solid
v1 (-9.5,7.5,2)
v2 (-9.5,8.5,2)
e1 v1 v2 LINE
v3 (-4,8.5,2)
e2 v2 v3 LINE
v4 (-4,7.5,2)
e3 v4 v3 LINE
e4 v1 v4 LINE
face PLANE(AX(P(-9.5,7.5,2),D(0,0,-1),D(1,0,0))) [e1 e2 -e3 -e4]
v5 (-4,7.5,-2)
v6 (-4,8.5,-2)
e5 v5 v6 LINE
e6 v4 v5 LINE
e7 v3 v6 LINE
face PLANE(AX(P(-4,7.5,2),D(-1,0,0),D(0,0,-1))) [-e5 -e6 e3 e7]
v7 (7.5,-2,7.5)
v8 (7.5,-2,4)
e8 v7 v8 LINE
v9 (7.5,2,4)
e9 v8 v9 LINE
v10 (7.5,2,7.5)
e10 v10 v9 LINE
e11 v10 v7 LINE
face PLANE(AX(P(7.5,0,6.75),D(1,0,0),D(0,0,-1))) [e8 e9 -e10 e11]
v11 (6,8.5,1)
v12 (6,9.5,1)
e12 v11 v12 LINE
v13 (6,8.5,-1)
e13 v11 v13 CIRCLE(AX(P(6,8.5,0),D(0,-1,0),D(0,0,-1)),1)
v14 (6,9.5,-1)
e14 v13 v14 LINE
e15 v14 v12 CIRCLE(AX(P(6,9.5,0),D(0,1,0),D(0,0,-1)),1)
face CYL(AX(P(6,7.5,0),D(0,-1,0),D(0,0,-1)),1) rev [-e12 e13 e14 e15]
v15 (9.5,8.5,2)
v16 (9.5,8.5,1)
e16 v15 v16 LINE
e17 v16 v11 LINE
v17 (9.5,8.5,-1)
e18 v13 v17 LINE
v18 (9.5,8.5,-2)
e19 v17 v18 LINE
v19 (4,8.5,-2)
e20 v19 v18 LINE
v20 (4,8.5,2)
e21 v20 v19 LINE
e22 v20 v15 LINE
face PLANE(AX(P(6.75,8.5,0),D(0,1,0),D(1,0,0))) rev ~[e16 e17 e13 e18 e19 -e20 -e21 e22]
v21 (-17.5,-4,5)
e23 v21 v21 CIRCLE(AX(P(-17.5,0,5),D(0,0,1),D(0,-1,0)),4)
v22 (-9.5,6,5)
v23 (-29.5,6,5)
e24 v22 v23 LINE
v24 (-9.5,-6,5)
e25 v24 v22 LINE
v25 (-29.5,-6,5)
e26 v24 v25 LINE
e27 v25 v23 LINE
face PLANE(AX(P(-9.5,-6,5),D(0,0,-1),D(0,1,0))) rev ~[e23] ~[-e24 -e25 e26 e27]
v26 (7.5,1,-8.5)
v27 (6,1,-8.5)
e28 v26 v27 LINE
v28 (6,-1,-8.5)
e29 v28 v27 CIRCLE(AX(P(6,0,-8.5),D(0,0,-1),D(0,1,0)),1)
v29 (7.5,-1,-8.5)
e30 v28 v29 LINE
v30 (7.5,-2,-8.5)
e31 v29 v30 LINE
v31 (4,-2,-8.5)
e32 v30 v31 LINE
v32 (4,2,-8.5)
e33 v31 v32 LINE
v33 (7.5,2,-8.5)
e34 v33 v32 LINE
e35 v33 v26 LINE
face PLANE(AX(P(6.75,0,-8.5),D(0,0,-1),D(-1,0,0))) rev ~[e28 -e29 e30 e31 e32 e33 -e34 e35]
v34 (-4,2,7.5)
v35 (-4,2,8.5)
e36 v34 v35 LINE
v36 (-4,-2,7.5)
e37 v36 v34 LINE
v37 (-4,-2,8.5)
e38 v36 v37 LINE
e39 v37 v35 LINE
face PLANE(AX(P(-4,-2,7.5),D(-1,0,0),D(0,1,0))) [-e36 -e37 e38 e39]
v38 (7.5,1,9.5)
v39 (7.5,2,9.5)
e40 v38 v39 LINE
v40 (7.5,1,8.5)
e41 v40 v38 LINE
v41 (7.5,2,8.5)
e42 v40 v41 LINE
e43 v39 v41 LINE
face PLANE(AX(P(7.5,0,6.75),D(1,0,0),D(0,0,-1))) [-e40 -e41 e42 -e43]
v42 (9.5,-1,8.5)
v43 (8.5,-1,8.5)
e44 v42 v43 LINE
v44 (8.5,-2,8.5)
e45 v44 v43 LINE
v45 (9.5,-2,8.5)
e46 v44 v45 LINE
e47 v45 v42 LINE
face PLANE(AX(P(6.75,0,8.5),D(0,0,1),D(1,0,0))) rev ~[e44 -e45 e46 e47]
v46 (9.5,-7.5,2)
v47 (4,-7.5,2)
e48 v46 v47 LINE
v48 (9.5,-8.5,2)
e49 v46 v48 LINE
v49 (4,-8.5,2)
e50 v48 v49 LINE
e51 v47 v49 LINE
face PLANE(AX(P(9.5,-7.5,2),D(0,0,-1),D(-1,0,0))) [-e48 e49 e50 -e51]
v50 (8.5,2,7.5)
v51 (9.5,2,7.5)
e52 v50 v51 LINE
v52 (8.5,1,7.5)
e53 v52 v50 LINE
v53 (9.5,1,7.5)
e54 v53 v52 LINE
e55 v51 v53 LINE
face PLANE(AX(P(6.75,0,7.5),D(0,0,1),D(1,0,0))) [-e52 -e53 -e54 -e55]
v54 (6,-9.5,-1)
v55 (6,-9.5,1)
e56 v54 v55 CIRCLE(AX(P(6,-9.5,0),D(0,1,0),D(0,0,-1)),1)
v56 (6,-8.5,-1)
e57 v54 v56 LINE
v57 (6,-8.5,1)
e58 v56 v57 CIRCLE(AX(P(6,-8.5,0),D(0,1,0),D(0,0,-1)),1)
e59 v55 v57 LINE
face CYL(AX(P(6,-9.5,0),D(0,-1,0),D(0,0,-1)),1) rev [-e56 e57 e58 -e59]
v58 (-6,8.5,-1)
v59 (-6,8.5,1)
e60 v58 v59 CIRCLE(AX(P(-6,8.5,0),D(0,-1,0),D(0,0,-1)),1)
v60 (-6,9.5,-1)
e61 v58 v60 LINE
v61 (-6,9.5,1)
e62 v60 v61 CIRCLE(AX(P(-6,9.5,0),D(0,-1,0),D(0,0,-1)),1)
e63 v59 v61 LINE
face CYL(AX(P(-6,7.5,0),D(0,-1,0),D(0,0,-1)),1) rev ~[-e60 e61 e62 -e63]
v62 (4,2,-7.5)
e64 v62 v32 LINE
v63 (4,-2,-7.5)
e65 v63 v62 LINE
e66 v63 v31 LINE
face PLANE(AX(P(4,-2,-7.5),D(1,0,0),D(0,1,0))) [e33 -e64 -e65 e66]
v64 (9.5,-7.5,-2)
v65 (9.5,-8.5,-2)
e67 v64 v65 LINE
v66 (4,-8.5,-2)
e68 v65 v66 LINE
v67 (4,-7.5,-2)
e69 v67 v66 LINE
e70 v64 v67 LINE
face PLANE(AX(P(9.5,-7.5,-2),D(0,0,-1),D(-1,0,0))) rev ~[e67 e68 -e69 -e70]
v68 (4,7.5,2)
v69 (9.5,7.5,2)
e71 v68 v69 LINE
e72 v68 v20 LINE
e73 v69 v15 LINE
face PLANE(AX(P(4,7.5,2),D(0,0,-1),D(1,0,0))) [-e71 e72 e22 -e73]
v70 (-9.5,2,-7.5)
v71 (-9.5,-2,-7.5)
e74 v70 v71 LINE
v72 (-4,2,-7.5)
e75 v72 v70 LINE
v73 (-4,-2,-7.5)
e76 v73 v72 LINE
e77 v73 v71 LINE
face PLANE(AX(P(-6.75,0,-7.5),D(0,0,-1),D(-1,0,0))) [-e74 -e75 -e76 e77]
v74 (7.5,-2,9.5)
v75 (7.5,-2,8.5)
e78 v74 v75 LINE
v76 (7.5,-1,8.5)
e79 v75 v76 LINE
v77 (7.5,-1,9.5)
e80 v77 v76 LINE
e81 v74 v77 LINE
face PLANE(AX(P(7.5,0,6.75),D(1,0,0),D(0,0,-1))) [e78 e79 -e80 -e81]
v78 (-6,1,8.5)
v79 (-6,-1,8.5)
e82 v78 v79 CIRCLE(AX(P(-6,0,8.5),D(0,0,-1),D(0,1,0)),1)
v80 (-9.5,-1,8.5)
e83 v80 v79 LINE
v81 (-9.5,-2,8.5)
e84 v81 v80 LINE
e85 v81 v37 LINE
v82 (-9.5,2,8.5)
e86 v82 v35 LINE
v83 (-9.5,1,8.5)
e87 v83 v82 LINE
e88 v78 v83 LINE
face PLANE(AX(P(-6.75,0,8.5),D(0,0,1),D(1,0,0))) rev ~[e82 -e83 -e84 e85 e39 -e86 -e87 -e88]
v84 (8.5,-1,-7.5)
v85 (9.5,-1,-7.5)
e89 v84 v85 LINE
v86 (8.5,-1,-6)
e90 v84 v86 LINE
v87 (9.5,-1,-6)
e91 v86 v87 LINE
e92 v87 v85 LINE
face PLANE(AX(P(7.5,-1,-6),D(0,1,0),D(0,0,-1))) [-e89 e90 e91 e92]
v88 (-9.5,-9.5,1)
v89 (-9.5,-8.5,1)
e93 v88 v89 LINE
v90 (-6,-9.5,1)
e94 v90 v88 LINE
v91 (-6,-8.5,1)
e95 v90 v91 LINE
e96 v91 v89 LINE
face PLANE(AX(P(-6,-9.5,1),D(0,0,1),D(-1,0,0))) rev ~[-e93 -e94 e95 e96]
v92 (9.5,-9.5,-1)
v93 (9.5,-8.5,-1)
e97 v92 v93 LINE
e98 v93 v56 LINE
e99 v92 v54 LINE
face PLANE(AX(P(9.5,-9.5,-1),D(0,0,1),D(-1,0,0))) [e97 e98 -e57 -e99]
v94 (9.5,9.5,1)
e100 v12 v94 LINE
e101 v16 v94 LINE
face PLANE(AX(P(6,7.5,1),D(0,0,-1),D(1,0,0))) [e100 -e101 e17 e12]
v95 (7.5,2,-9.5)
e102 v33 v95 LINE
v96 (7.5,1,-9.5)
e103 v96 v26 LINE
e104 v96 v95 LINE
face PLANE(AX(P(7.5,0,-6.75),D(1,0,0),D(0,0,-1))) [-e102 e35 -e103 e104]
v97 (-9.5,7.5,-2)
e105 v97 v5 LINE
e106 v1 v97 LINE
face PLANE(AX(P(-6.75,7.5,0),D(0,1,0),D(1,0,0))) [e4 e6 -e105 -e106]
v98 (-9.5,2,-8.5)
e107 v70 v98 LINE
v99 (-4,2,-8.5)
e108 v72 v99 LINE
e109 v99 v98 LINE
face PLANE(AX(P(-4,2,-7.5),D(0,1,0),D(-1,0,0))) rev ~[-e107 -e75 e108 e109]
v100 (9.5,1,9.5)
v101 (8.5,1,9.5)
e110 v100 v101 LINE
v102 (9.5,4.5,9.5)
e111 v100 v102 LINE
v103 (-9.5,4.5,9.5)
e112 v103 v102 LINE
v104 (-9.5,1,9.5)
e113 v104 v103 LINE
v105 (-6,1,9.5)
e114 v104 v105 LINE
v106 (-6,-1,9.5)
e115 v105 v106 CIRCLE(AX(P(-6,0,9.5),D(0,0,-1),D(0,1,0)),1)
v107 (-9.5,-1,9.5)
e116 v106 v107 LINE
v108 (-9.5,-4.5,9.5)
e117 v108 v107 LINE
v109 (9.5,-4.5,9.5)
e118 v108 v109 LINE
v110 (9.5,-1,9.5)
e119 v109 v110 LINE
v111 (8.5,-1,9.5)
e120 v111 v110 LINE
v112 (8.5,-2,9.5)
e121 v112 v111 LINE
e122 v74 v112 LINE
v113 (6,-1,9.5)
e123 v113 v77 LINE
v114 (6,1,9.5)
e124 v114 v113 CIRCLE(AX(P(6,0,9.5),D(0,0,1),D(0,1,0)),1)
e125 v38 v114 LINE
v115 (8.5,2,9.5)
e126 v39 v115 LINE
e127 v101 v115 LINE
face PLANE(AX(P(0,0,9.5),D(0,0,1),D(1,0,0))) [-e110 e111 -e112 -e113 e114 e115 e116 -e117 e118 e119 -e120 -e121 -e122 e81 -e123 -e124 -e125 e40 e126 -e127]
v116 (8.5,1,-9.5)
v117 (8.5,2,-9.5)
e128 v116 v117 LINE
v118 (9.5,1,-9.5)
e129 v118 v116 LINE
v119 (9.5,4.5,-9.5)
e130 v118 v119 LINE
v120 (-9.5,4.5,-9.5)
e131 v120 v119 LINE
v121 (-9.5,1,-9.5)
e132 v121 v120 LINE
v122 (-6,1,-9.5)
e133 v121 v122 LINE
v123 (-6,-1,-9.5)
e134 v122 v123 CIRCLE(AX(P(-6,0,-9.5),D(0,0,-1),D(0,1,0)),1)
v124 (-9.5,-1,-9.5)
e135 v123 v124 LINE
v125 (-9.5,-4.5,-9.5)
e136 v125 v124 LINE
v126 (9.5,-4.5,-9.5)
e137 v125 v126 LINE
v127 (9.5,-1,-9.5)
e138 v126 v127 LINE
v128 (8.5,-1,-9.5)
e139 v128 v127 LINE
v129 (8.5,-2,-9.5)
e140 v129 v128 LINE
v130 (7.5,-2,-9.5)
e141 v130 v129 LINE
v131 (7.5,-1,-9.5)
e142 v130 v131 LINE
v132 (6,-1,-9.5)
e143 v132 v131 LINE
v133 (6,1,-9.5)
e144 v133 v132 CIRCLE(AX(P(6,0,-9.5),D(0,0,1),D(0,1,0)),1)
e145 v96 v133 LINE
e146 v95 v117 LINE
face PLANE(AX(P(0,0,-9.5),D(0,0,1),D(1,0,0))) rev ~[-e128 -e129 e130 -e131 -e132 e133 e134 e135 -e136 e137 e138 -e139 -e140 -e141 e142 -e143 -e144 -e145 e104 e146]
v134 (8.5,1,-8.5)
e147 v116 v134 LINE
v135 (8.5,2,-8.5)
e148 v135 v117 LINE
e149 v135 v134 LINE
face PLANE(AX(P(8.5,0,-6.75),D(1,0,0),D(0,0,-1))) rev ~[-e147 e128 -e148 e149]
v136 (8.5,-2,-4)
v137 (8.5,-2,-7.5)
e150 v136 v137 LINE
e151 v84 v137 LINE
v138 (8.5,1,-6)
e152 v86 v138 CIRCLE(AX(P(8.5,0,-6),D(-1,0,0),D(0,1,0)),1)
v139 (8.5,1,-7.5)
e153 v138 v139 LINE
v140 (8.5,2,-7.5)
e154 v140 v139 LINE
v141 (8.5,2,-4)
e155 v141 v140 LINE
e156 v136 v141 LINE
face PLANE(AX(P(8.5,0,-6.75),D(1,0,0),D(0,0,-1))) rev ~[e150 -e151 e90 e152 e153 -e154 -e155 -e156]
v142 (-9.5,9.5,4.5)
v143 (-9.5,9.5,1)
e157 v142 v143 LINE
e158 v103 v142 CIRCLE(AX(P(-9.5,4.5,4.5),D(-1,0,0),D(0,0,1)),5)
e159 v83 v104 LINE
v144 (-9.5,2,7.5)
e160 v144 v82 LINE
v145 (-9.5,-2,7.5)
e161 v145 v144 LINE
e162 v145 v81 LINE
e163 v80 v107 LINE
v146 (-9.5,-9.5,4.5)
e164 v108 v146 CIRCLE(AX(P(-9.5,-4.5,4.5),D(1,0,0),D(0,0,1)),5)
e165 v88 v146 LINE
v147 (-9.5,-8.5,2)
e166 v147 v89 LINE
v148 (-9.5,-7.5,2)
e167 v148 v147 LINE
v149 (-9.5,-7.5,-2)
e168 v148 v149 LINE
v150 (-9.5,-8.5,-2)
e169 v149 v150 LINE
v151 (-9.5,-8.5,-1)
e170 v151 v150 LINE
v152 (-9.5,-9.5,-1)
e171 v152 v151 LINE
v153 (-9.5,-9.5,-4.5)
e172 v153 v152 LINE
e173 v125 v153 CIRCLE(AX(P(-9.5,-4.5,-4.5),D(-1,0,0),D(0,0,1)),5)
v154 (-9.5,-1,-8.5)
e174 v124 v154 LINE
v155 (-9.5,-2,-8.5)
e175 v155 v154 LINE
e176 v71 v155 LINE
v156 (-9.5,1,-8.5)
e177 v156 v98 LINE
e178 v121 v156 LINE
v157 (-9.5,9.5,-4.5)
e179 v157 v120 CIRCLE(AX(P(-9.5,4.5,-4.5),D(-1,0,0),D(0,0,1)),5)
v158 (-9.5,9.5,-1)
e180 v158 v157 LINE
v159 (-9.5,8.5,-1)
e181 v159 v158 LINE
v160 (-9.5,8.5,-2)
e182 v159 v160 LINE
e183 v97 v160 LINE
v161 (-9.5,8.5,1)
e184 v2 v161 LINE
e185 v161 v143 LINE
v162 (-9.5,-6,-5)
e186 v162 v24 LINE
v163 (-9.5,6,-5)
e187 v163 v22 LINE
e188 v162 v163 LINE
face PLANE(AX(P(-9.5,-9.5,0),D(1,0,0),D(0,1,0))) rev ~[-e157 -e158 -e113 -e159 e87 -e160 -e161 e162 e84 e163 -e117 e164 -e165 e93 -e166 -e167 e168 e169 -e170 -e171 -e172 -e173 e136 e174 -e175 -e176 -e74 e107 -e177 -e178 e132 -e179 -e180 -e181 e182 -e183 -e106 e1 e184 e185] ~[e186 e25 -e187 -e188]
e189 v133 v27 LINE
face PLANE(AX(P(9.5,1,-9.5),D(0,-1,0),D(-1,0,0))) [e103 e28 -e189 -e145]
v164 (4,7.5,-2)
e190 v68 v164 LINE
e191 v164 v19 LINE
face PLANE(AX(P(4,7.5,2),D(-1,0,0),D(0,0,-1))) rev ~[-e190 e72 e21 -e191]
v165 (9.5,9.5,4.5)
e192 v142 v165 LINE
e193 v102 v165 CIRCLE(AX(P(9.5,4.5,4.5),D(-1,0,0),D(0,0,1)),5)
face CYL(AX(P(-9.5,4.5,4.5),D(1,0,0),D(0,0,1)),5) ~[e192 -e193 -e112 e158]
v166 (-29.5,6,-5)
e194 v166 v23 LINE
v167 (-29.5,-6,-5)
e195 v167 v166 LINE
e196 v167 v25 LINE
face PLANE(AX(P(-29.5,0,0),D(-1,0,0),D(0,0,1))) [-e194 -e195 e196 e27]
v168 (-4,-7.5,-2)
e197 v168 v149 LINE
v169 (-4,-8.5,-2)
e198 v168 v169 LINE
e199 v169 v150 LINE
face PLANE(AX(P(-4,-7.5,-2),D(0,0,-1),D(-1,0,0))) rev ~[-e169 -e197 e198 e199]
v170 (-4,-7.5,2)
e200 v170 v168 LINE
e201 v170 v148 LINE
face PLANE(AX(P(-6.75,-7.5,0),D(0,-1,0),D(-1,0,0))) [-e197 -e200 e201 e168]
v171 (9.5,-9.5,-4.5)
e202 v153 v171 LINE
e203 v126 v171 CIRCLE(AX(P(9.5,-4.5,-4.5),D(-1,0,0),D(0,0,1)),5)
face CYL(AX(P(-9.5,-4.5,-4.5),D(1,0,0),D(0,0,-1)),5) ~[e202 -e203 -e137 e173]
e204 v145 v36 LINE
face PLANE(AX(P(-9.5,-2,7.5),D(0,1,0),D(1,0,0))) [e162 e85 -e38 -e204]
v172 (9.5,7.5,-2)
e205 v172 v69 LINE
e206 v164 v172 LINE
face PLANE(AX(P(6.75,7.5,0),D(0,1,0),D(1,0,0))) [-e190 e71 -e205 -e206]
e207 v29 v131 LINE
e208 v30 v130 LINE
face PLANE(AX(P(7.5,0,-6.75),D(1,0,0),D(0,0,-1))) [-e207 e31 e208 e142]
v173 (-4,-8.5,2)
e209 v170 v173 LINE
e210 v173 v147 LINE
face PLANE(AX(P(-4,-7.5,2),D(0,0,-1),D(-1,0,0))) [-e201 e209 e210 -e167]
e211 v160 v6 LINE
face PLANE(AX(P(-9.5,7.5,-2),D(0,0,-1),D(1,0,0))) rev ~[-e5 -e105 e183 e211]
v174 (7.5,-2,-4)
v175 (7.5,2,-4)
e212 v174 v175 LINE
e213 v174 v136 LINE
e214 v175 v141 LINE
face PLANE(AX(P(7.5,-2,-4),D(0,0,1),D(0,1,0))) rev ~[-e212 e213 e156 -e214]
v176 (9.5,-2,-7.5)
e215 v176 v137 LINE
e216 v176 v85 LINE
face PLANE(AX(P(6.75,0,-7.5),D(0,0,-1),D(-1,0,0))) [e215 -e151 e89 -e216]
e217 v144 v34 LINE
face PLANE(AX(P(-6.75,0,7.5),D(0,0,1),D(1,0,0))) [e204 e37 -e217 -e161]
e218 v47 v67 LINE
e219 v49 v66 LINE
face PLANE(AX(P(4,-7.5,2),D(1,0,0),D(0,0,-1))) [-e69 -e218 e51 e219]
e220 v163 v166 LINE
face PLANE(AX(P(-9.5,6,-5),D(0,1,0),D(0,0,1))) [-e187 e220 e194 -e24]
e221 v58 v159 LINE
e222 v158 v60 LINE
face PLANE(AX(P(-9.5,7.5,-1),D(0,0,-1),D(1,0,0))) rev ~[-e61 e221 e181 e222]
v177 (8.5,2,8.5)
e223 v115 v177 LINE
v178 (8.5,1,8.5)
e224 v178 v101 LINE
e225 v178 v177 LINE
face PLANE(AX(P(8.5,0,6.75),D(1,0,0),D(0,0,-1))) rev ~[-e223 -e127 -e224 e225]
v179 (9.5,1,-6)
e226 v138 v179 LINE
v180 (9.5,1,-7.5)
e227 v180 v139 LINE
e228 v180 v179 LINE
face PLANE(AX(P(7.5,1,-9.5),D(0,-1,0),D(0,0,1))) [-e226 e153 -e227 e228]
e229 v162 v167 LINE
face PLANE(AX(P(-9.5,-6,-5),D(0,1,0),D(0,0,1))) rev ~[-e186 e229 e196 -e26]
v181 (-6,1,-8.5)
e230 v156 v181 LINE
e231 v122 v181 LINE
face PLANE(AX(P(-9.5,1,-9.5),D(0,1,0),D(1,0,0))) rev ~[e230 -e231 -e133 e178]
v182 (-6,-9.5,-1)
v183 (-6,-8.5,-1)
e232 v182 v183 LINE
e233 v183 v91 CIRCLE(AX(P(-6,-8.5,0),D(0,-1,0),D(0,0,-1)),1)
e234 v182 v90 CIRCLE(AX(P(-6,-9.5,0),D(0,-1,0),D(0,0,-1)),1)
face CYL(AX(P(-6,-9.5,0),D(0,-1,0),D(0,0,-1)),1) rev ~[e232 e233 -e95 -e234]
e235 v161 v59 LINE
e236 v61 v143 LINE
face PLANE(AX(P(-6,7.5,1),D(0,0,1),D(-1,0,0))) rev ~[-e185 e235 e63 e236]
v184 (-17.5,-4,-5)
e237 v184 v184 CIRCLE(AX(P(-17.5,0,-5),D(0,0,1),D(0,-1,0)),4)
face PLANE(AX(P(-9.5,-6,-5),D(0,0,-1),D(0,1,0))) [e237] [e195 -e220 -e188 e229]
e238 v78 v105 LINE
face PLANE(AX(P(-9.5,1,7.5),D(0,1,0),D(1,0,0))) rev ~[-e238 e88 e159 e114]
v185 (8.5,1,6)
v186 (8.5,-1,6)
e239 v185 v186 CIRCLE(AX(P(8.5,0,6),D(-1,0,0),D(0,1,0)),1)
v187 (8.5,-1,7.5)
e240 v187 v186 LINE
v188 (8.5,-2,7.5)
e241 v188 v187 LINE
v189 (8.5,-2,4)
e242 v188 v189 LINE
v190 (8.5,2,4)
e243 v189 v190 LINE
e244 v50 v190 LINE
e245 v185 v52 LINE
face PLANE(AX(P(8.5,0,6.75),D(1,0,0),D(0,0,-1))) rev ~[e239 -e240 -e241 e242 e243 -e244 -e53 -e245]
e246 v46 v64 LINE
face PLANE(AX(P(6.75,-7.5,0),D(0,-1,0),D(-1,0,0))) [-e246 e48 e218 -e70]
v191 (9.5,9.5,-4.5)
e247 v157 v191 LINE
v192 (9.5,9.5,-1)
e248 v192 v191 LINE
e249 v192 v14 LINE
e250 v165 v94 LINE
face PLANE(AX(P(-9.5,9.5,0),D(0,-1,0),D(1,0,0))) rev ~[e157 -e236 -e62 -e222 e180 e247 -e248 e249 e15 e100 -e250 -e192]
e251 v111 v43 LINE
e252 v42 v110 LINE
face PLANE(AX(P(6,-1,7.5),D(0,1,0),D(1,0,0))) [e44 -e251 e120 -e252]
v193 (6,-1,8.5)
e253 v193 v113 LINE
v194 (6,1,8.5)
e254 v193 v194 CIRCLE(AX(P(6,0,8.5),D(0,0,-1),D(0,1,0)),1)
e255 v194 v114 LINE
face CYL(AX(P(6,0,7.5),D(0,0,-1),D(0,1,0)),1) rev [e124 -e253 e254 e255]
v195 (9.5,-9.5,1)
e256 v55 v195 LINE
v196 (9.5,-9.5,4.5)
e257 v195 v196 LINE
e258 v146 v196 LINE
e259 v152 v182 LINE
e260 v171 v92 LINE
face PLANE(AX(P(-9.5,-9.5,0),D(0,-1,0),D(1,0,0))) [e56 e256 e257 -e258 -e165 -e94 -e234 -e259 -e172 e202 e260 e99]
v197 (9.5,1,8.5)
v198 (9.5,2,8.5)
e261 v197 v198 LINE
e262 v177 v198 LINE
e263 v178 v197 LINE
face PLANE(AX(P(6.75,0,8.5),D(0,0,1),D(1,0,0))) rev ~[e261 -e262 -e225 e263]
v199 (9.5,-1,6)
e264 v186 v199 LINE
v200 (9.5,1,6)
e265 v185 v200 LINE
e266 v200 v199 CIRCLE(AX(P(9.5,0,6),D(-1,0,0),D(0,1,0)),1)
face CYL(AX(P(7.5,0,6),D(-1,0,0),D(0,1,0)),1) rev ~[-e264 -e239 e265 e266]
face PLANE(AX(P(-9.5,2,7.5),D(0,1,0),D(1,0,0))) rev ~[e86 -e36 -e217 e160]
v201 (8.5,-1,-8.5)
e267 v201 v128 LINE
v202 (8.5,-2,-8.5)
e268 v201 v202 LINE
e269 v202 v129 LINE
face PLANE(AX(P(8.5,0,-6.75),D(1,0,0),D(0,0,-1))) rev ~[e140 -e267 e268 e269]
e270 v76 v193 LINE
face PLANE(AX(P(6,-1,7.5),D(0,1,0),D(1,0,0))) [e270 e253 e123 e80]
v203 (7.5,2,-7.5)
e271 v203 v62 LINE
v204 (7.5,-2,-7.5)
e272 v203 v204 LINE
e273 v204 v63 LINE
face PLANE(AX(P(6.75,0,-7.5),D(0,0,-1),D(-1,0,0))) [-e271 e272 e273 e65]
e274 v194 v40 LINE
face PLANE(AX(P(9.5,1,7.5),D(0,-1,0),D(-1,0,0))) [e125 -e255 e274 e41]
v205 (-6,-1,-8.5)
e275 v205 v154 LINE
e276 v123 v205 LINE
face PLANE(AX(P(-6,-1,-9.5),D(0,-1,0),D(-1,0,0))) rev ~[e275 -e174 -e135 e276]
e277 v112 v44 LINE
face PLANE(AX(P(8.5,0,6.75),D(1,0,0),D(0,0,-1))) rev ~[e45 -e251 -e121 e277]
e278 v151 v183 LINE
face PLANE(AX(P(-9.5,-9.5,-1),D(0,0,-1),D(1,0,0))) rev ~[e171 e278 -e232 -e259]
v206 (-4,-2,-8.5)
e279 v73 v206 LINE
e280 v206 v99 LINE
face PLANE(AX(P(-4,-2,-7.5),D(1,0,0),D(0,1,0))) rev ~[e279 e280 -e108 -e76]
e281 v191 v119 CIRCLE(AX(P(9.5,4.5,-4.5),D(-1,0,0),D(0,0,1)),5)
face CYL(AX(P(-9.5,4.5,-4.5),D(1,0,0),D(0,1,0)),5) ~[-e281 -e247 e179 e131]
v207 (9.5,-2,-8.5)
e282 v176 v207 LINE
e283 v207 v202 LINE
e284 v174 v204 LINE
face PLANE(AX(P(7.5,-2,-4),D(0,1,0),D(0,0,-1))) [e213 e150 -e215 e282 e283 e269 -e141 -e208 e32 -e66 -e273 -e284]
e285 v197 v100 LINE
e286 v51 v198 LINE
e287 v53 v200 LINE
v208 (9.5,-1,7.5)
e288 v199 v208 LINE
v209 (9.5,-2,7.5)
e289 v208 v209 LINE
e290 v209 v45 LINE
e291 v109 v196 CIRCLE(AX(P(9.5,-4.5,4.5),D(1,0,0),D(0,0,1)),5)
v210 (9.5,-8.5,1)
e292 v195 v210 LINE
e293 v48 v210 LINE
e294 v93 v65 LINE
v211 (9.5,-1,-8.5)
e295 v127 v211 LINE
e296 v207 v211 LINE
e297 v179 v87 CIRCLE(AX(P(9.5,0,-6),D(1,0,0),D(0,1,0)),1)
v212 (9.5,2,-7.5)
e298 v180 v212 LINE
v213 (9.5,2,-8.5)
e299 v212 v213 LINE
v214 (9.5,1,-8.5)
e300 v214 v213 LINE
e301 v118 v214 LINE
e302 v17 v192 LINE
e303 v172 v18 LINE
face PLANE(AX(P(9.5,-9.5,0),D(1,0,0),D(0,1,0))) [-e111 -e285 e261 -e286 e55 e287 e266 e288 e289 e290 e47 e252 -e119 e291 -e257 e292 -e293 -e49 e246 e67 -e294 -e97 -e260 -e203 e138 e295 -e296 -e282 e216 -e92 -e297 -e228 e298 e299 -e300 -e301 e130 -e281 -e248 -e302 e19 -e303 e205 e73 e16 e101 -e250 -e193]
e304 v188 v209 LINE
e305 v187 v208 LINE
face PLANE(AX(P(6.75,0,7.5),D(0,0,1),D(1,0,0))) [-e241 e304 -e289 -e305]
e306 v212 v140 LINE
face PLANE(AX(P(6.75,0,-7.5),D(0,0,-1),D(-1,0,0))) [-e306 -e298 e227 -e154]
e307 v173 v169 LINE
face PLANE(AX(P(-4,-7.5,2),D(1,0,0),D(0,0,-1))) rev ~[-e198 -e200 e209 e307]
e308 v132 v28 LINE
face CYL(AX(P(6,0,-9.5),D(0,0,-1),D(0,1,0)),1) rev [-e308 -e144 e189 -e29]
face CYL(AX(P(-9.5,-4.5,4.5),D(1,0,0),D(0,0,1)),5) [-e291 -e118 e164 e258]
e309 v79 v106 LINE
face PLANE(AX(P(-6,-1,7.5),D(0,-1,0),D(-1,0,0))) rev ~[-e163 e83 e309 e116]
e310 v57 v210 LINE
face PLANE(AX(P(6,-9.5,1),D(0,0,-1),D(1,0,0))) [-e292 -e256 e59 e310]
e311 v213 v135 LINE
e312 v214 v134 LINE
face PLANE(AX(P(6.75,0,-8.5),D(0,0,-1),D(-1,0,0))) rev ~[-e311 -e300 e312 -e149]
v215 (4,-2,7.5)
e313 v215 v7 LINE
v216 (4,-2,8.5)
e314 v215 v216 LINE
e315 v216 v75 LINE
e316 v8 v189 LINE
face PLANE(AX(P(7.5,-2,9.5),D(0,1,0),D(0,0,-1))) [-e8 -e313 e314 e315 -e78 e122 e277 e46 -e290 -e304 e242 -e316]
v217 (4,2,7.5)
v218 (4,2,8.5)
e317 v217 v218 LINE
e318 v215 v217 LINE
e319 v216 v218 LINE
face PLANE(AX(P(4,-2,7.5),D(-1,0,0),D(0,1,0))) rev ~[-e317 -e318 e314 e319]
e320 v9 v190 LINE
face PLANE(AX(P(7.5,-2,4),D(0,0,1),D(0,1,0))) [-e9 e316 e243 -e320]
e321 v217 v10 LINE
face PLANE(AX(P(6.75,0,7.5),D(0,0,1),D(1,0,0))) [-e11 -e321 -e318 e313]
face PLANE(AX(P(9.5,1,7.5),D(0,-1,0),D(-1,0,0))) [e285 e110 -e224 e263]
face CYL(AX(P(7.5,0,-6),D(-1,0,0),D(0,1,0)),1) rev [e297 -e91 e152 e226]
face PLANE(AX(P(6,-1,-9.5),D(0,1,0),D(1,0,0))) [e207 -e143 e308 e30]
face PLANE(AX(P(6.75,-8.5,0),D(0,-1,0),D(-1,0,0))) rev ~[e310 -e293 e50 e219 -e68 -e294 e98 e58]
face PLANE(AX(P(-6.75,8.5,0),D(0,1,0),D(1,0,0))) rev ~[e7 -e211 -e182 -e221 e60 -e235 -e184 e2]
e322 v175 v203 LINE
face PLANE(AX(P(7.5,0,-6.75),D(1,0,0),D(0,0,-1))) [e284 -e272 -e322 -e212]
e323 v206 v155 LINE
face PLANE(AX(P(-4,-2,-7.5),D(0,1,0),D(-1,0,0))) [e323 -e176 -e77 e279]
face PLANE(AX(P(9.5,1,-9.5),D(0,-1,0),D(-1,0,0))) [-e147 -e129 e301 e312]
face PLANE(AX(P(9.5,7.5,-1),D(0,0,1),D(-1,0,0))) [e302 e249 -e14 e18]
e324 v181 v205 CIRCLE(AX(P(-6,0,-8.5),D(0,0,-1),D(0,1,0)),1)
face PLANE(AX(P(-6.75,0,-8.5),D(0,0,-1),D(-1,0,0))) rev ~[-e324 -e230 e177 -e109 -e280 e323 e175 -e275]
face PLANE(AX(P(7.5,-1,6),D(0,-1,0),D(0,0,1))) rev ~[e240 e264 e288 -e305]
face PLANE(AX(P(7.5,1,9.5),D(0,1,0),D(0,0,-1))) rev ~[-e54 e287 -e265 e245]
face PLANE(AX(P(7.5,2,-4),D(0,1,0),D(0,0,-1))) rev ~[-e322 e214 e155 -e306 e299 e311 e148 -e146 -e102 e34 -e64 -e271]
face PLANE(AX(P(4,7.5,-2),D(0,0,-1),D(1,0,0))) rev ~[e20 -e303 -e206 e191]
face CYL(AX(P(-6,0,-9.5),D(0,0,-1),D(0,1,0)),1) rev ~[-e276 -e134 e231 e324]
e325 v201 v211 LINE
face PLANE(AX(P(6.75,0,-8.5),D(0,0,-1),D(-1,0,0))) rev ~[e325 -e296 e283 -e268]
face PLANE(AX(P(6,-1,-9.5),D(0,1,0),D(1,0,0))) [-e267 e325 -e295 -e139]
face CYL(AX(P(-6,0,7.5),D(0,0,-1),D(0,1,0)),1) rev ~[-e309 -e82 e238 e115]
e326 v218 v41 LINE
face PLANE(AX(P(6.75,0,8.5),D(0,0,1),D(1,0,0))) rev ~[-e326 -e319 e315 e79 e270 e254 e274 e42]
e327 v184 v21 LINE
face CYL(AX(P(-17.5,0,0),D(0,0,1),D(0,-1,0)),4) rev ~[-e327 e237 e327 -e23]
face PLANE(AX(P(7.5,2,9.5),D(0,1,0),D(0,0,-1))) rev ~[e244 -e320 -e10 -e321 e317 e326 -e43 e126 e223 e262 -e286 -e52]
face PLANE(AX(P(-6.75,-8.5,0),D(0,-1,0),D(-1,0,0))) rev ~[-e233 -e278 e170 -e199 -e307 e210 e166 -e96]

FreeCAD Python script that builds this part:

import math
import FreeCAD as App
import Part
import Sketcher
Q = App.Units.Quantity


def edges_at(feature, points):
    """Names of the edges that pass closest to the given points."""
    edges = feature.Shape.Edges
    near = lambda p: min(range(len(edges)), key=lambda i: edges[i].distToShape(Part.Vertex(*p))[0])
    return sorted({f"Edge{near(p) + 1}" for p in points})

doc = App.newDocument("Part")
params = doc.addObject("Spreadsheet::Sheet", "Params")
for row, (alias, value) in enumerate([
    ("sketch1_width", "19 mm"),
    ("pad1_length", "19 mm"),
    ("fillet_radius", "5 mm"),
    ("fillet2_radius", "5 mm"),
    ("sketch2_height", "4 mm"),
    ("sketch2_width", "5.5 mm"),
    ("pocket1_length", "1 mm"),
    ("sketch3_radius", "1 mm"),
    ("sketch3_width", "3.5 mm"),
    ("pocket2_length", "1 mm"),
    ("sketch4_height", "4 mm"),
    ("sketch4_width", "5.5 mm"),
    ("pocket3_length", "1 mm"),
    ("sketch5_height", "4 mm"),
    ("sketch5_width", "5.5 mm"),
    ("pocket4_length", "1 mm"),
    ("sketch6_height", "4 mm"),
    ("sketch6_width", "5.5 mm"),
    ("pocket5_length", "1 mm"),
    ("sketch7_radius", "1 mm"),
    ("sketch7_width", "3.5 mm"),
    ("pocket6_length", "2 mm"),
    ("sketch8_radius", "1 mm"),
    ("sketch8_width", "3.5 mm"),
    ("pocket7_length", "2 mm"),
    ("sketch9_radius", "1 mm"),
    ("sketch9_width", "3.5 mm"),
    ("pocket8_length", "2 mm"),
    ("sketch10_width", "4 mm"),
    ("sketch10_height", "5.5 mm"),
    ("pocket9_length", "1 mm"),
    ("sketch11_radius", "1 mm"),
    ("sketch11_height", "3.5 mm"),
    ("pocket10_length", "2 mm"),
    ("sketch12_width", "12 mm"),
    ("sketch12_height", "10 mm"),
    ("pad2_length", "20 mm"),
    ("sketch13_diameter", "8 mm"),
    ("pocket11_length", "20 mm"),
], start=1):
    params.set(f"A{row}", alias)
    params.set(f"B{row}", "=" + value)
    params.setAlias(f"B{row}", alias)

body = doc.addObject("PartDesign::Body", "Body")

sketch1 = body.newObject("Sketcher::SketchObject", "Sketch")
sketch1.AttachmentSupport = (doc.getObject("XY_Plane"), [""])
sketch1.MapMode = "FlatFace"
sketch1.addGeometry([
    Part.LineSegment(App.Vector(-10, 10, 0), App.Vector(-10, -10, 0)),
    Part.LineSegment(App.Vector(-10, -10, 0), App.Vector(10, -10, 0)),
    Part.LineSegment(App.Vector(10, -10, 0), App.Vector(10, 10, 0)),
    Part.LineSegment(App.Vector(10, 10, 0), App.Vector(-10, 10, 0)),
], False)
sketch1.addConstraint([
    Sketcher.Constraint("Coincident", 0, 2, 1, 1),
    Sketcher.Constraint("Coincident", 1, 2, 2, 1),
    Sketcher.Constraint("Coincident", 2, 2, 3, 1),
    Sketcher.Constraint("Coincident", 3, 2, 0, 1),
    Sketcher.Constraint("Vertical", 0),
    Sketcher.Constraint("Horizontal", 1),
    Sketcher.Constraint("Vertical", 2),
    Sketcher.Constraint("Horizontal", 3),
    Sketcher.Constraint("Symmetric", 0, 2, 2, 2, -1, 1),
    Sketcher.Constraint("Equal", 3, 0),
    Sketcher.Constraint("DistanceX", 1, 1, 1, 2, Q("19 mm")),
])
sketch1.setExpression("Constraints[10]", "Params.sketch1_width")
pad1 = body.newObject("PartDesign::Pad", "Pad")
pad1.Profile = sketch1
pad1.setExpression("Length", "Params.pad1_length")
pad1.Midplane = True
doc.recompute()

fillet = body.newObject("PartDesign::Fillet", "Fillet")
fillet.Base = (pad1, edges_at(pad1, [(0, 9.5, 9.5)]))
fillet.setExpression("Radius", "Params.fillet_radius")
doc.recompute()

fillet2 = body.newObject("PartDesign::Fillet", "Fillet001")
fillet2.Base = (fillet, edges_at(fillet, [(0, -9.5, 9.5), (0, -9.5, -9.5), (0, 9.5, -9.5)]))
fillet2.setExpression("Radius", "Params.fillet2_radius")

sketch2 = body.newObject("Sketcher::SketchObject", "Sketch001")
sketch2.AttachmentSupport = (doc.getObject("XZ_Plane"), [""])
sketch2.MapMode = "FlatFace"
sketch2.AttachmentOffset = App.Placement(App.Vector(0, 0, 7.5), App.Rotation())
sketch2.addGeometry([
    Part.LineSegment(App.Vector(9.5, -2, 0), App.Vector(9.5, 2, 0)),
    Part.LineSegment(App.Vector(9.5, 2, 0), App.Vector(4, 2, 0)),
    Part.LineSegment(App.Vector(4, 2, 0), App.Vector(4, -2, 0)),
    Part.LineSegment(App.Vector(4, -2, 0), App.Vector(9.5, -2, 0)),
    Part.LineSegment(App.Vector(-4, -2, 0), App.Vector(-4, 2, 0)),
    Part.LineSegment(App.Vector(-4, 2, 0), App.Vector(-9.5, 2, 0)),
    Part.LineSegment(App.Vector(-9.5, 2, 0), App.Vector(-9.5, -2, 0)),
    Part.LineSegment(App.Vector(-9.5, -2, 0), App.Vector(-4, -2, 0)),
], False)
sketch2.addConstraint([
    Sketcher.Constraint("Coincident", 0, 2, 1, 1),
    Sketcher.Constraint("Coincident", 1, 2, 2, 1),
    Sketcher.Constraint("Coincident", 2, 2, 3, 1),
    Sketcher.Constraint("Coincident", 3, 2, 0, 1),
    Sketcher.Constraint("Coincident", 4, 2, 5, 1),
    Sketcher.Constraint("Coincident", 5, 2, 6, 1),
    Sketcher.Constraint("Coincident", 6, 2, 7, 1),
    Sketcher.Constraint("Coincident", 7, 2, 4, 1),
    Sketcher.Constraint("Vertical", 0),
    Sketcher.Constraint("Horizontal", 1),
    Sketcher.Constraint("Vertical", 2),
    Sketcher.Constraint("Horizontal", 3),
    Sketcher.Constraint("Vertical", 4),
    Sketcher.Constraint("Horizontal", 5),
    Sketcher.Constraint("Vertical", 6),
    Sketcher.Constraint("Horizontal", 7),
    Sketcher.Constraint("Symmetric", 2, 2, 4, 2, -1, 1),
    Sketcher.Constraint("Symmetric", 0, 2, 6, 2, -1, 1),
    Sketcher.Constraint("Horizontal", 1, 2, 4, 2),
    Sketcher.Constraint("DistanceY", 0, 1, 0, 2, Q("4 mm")),
    Sketcher.Constraint("DistanceX", 1, 2, 1, 1, Q("5.5 mm")),
    Sketcher.Constraint("DistanceX", -1, 1, 1, 2, Q("4 mm")),
])
sketch2.setExpression("Constraints[19]", "Params.sketch2_height")
sketch2.setExpression("Constraints[20]", "Params.sketch2_width")
pocket1 = body.newObject("PartDesign::Pocket", "Pocket")
pocket1.Profile = sketch2
pocket1.setExpression("Length", "Params.pocket1_length")
pocket1.Reversed = True

sketch3 = body.newObject("Sketcher::SketchObject", "Sketch002")
sketch3.AttachmentSupport = (doc.getObject("XZ_Plane"), [""])
sketch3.MapMode = "FlatFace"
sketch3.AttachmentOffset = App.Placement(App.Vector(0, 0, 9.5), App.Rotation())
sketch3.addGeometry([
    Part.LineSegment(App.Vector(9.5, 1, 0), App.Vector(6, 1, 0)),
    Part.ArcOfCircle(Part.Circle(App.Vector(6, 0, 0), App.Vector(0, 0, 1), 1), math.radians(90), math.radians(270)),
    Part.LineSegment(App.Vector(6, -1, 0), App.Vector(9.5, -1, 0)),
    Part.LineSegment(App.Vector(9.5, -1, 0), App.Vector(9.5, 1, 0)),
    Part.LineSegment(App.Vector(-9.5, 1, 0), App.Vector(-9.5, -1, 0)),
    Part.LineSegment(App.Vector(-9.5, -1, 0), App.Vector(-6, -1, 0)),
    Part.ArcOfCircle(Part.Circle(App.Vector(-6, 0, 0), App.Vector(0, 0, 1), 1), math.radians(-90), math.radians(90)),
    Part.LineSegment(App.Vector(-6, 1, 0), App.Vector(-9.5, 1, 0)),
], False)
sketch3.addConstraint([
    Sketcher.Constraint("Tangent", 0, 2, 1, 1),
    Sketcher.Constraint("Tangent", 1, 2, 2, 1),
    Sketcher.Constraint("Coincident", 2, 2, 3, 1),
    Sketcher.Constraint("Coincident", 3, 2, 0, 1),
    Sketcher.Constraint("Coincident", 4, 2, 5, 1),
    Sketcher.Constraint("Tangent", 5, 2, 6, 1),
    Sketcher.Constraint("Tangent", 6, 2, 7, 1),
    Sketcher.Constraint("Coincident", 7, 2, 4, 1),
    Sketcher.Constraint("Horizontal", 0),
    Sketcher.Constraint("Horizontal", 2),
    Sketcher.Constraint("Vertical", 3),
    Sketcher.Constraint("Vertical", 4),
    Sketcher.Constraint("Horizontal", 5),
    Sketcher.Constraint("Horizontal", 7),
    Sketcher.Constraint("Equal", 1, 6),
    Sketcher.Constraint("Symmetric", 1, 3, 6, 3, -1, 1),
    Sketcher.Constraint("Symmetric", 2, 2, 4, 2, -2),
    Sketcher.Constraint("Radius", 1, Q("1 mm")),
    Sketcher.Constraint("DistanceX", 0, 2, 0, 1, Q("3.5 mm")),
    Sketcher.Constraint("DistanceX", -1, 1, 1, 3, Q("6 mm")),
])
sketch3.setExpression("Constraints[17]", "Params.sketch3_radius")
sketch3.setExpression("Constraints[18]", "Params.sketch3_width")
pocket2 = body.newObject("PartDesign::Pocket", "Pocket001")
pocket2.Profile = sketch3
pocket2.setExpression("Length", "Params.pocket2_length")

sketch4 = body.newObject("Sketcher::SketchObject", "Sketch003")
sketch4.AttachmentSupport = (doc.getObject("XY_Plane"), [""])
sketch4.MapMode = "FlatFace"
sketch4.AttachmentOffset = App.Placement(App.Vector(0, 0, 7.5), App.Rotation())
sketch4.addGeometry([
    Part.LineSegment(App.Vector(-9.5, 2, 0), App.Vector(-9.5, -2, 0)),
    Part.LineSegment(App.Vector(-9.5, -2, 0), App.Vector(-4, -2, 0)),
    Part.LineSegment(App.Vector(-4, -2, 0), App.Vector(-4, 2, 0)),
    Part.LineSegment(App.Vector(-4, 2, 0), App.Vector(-9.5, 2, 0)),
    Part.LineSegment(App.Vector(4, 2, 0), App.Vector(4, -2, 0)),
    Part.LineSegment(App.Vector(4, -2, 0), App.Vector(9.5, -2, 0)),
    Part.LineSegment(App.Vector(9.5, -2, 0), App.Vector(9.5, 2, 0)),
    Part.LineSegment(App.Vector(9.5, 2, 0), App.Vector(4, 2, 0)),
], False)
sketch4.addConstraint([
    Sketcher.Constraint("Coincident", 0, 2, 1, 1),
    Sketcher.Constraint("Coincident", 1, 2, 2, 1),
    Sketcher.Constraint("Coincident", 2, 2, 3, 1),
    Sketcher.Constraint("Coincident", 3, 2, 0, 1),
    Sketcher.Constraint("Coincident", 4, 2, 5, 1),
    Sketcher.Constraint("Coincident", 5, 2, 6, 1),
    Sketcher.Constraint("Coincident", 6, 2, 7, 1),
    Sketcher.Constraint("Coincident", 7, 2, 4, 1),
    Sketcher.Constraint("Vertical", 0),
    Sketcher.Constraint("Horizontal", 1),
    Sketcher.Constraint("Vertical", 2),
    Sketcher.Constraint("Horizontal", 3),
    Sketcher.Constraint("Vertical", 4),
    Sketcher.Constraint("Horizontal", 5),
    Sketcher.Constraint("Vertical", 6),
    Sketcher.Constraint("Horizontal", 7),
    Sketcher.Constraint("Symmetric", 2, 2, 4, 2, -1, 1),
    Sketcher.Constraint("Symmetric", 0, 2, 6, 2, -1, 1),
    Sketcher.Constraint("Horizontal", 1, 2, 4, 2),
    Sketcher.Constraint("DistanceY", 0, 2, 0, 1, Q("4 mm")),
    Sketcher.Constraint("DistanceX", 1, 1, 1, 2, Q("5.5 mm")),
    Sketcher.Constraint("DistanceX", 1, 2, -1, 1, Q("4 mm")),
])
sketch4.setExpression("Constraints[19]", "Params.sketch4_height")
sketch4.setExpression("Constraints[20]", "Params.sketch4_width")
pocket3 = body.newObject("PartDesign::Pocket", "Pocket002")
pocket3.Profile = sketch4
pocket3.setExpression("Length", "Params.pocket3_length")
pocket3.Reversed = True

sketch5 = body.newObject("Sketcher::SketchObject", "Sketch004")
sketch5.AttachmentSupport = (doc.getObject("XZ_Plane"), [""])
sketch5.MapMode = "FlatFace"
sketch5.AttachmentOffset = App.Placement(App.Vector(0, 0, -7.5), App.Rotation())
sketch5.addGeometry([
    Part.LineSegment(App.Vector(-9.5, -2, 0), App.Vector(-9.5, 2, 0)),
    Part.LineSegment(App.Vector(-9.5, 2, 0), App.Vector(-4, 2, 0)),
    Part.LineSegment(App.Vector(-4, 2, 0), App.Vector(-4, -2, 0)),
    Part.LineSegment(App.Vector(-4, -2, 0), App.Vector(-9.5, -2, 0)),
    Part.LineSegment(App.Vector(4, -2, 0), App.Vector(4, 2, 0)),
    Part.LineSegment(App.Vector(4, 2, 0), App.Vector(9.5, 2, 0)),
    Part.LineSegment(App.Vector(9.5, 2, 0), App.Vector(9.5, -2, 0)),
    Part.LineSegment(App.Vector(9.5, -2, 0), App.Vector(4, -2, 0)),
], False)
sketch5.addConstraint([
    Sketcher.Constraint("Coincident", 0, 2, 1, 1),
    Sketcher.Constraint("Coincident", 1, 2, 2, 1),
    Sketcher.Constraint("Coincident", 2, 2, 3, 1),
    Sketcher.Constraint("Coincident", 3, 2, 0, 1),
    Sketcher.Constraint("Coincident", 4, 2, 5, 1),
    Sketcher.Constraint("Coincident", 5, 2, 6, 1),
    Sketcher.Constraint("Coincident", 6, 2, 7, 1),
    Sketcher.Constraint("Coincident", 7, 2, 4, 1),
    Sketcher.Constraint("Vertical", 0),
    Sketcher.Constraint("Horizontal", 1),
    Sketcher.Constraint("Vertical", 2),
    Sketcher.Constraint("Horizontal", 3),
    Sketcher.Constraint("Vertical", 4),
    Sketcher.Constraint("Horizontal", 5),
    Sketcher.Constraint("Vertical", 6),
    Sketcher.Constraint("Horizontal", 7),
    Sketcher.Constraint("Symmetric", 2, 2, 4, 2, -1, 1),
    Sketcher.Constraint("Symmetric", 0, 2, 6, 2, -1, 1),
    Sketcher.Constraint("Horizontal", 1, 2, 4, 2),
    Sketcher.Constraint("DistanceY", 0, 1, 0, 2, Q("4 mm")),
    Sketcher.Constraint("DistanceX", 1, 1, 1, 2, Q("5.5 mm")),
    Sketcher.Constraint("DistanceX", 1, 2, -1, 1, Q("4 mm")),
])
sketch5.setExpression("Constraints[19]", "Params.sketch5_height")
sketch5.setExpression("Constraints[20]", "Params.sketch5_width")
pocket4 = body.newObject("PartDesign::Pocket", "Pocket003")
pocket4.Profile = sketch5
pocket4.setExpression("Length", "Params.pocket4_length")

sketch6 = body.newObject("Sketcher::SketchObject", "Sketch005")
sketch6.AttachmentSupport = (doc.getObject("XY_Plane"), [""])
sketch6.MapMode = "FlatFace"
sketch6.AttachmentOffset = App.Placement(App.Vector(0, 0, -7.5), App.Rotation())
sketch6.addGeometry([
    Part.LineSegment(App.Vector(9.5, 2, 0), App.Vector(9.5, -2, 0)),
    Part.LineSegment(App.Vector(9.5, -2, 0), App.Vector(4, -2, 0)),
    Part.LineSegment(App.Vector(4, -2, 0), App.Vector(4, 2, 0)),
    Part.LineSegment(App.Vector(4, 2, 0), App.Vector(9.5, 2, 0)),
    Part.LineSegment(App.Vector(-4, 2, 0), App.Vector(-4, -2, 0)),
    Part.LineSegment(App.Vector(-4, -2, 0), App.Vector(-9.5, -2, 0)),
    Part.LineSegment(App.Vector(-9.5, -2, 0), App.Vector(-9.5, 2, 0)),
    Part.LineSegment(App.Vector(-9.5, 2, 0), App.Vector(-4, 2, 0)),
], False)
sketch6.addConstraint([
    Sketcher.Constraint("Coincident", 0, 2, 1, 1),
    Sketcher.Constraint("Coincident", 1, 2, 2, 1),
    Sketcher.Constraint("Coincident", 2, 2, 3, 1),
    Sketcher.Constraint("Coincident", 3, 2, 0, 1),
    Sketcher.Constraint("Coincident", 4, 2, 5, 1),
    Sketcher.Constraint("Coincident", 5, 2, 6, 1),
    Sketcher.Constraint("Coincident", 6, 2, 7, 1),
    Sketcher.Constraint("Coincident", 7, 2, 4, 1),
    Sketcher.Constraint("Vertical", 0),
    Sketcher.Constraint("Horizontal", 1),
    Sketcher.Constraint("Vertical", 2),
    Sketcher.Constraint("Horizontal", 3),
    Sketcher.Constraint("Vertical", 4),
    Sketcher.Constraint("Horizontal", 5),
    Sketcher.Constraint("Vertical", 6),
    Sketcher.Constraint("Horizontal", 7),
    Sketcher.Constraint("Symmetric", 2, 2, 4, 2, -1, 1),
    Sketcher.Constraint("Symmetric", 0, 2, 6, 2, -1, 1),
    Sketcher.Constraint("Horizontal", 1, 2, 4, 2),
    Sketcher.Constraint("DistanceY", 0, 2, 0, 1, Q("4 mm")),
    Sketcher.Constraint("DistanceX", 1, 2, 1, 1, Q("5.5 mm")),
    Sketcher.Constraint("DistanceX", -1, 1, 1, 2, Q("4 mm")),
])
sketch6.setExpression("Constraints[19]", "Params.sketch6_height")
sketch6.setExpression("Constraints[20]", "Params.sketch6_width")
pocket5 = body.newObject("PartDesign::Pocket", "Pocket004")
pocket5.Profile = sketch6
pocket5.setExpression("Length", "Params.pocket5_length")

sketch7 = body.newObject("Sketcher::SketchObject", "Sketch006")
sketch7.AttachmentSupport = (doc.getObject("XY_Plane"), [""])
sketch7.MapMode = "FlatFace"
sketch7.AttachmentOffset = App.Placement(App.Vector(0, 0, 7.5), App.Rotation())
sketch7.addGeometry([
    Part.LineSegment(App.Vector(-9.5, -1, 0), App.Vector(-6, -1, 0)),
    Part.ArcOfCircle(Part.Circle(App.Vector(-6, 0, 0), App.Vector(0, 0, 1), 1), math.radians(-90), math.radians(90)),
    Part.LineSegment(App.Vector(-6, 1, 0), App.Vector(-9.5, 1, 0)),
    Part.LineSegment(App.Vector(-9.5, 1, 0), App.Vector(-9.5, -1, 0)),
    Part.LineSegment(App.Vector(9.5, -1, 0), App.Vector(9.5, 1, 0)),
    Part.LineSegment(App.Vector(9.5, 1, 0), App.Vector(6, 1, 0)),
    Part.ArcOfCircle(Part.Circle(App.Vector(6, 0, 0), App.Vector(0, 0, 1), 1), math.radians(90), math.radians(270)),
    Part.LineSegment(App.Vector(6, -1, 0), App.Vector(9.5, -1, 0)),
], False)
sketch7.addConstraint([
    Sketcher.Constraint("Tangent", 0, 2, 1, 1),
    Sketcher.Constraint("Tangent", 1, 2, 2, 1),
    Sketcher.Constraint("Coincident", 2, 2, 3, 1),
    Sketcher.Constraint("Coincident", 3, 2, 0, 1),
    Sketcher.Constraint("Coincident", 4, 2, 5, 1),
    Sketcher.Constraint("Tangent", 5, 2, 6, 1),
    Sketcher.Constraint("Tangent", 6, 2, 7, 1),
    Sketcher.Constraint("Coincident", 7, 2, 4, 1),
    Sketcher.Constraint("Horizontal", 0),
    Sketcher.Constraint("Horizontal", 2),
    Sketcher.Constraint("Vertical", 3),
    Sketcher.Constraint("Vertical", 4),
    Sketcher.Constraint("Horizontal", 5),
    Sketcher.Constraint("Horizontal", 7),
    Sketcher.Constraint("Equal", 1, 6),
    Sketcher.Constraint("Symmetric", 1, 3, 6, 3, -1, 1),
    Sketcher.Constraint("Symmetric", 2, 2, 4, 2, -2),
    Sketcher.Constraint("Radius", 1, Q("1 mm")),
    Sketcher.Constraint("DistanceX", 0, 1, 0, 2, Q("3.5 mm")),
    Sketcher.Constraint("DistanceX", 1, 3, -1, 1, Q("6 mm")),
])
sketch7.setExpression("Constraints[17]", "Params.sketch7_radius")
sketch7.setExpression("Constraints[18]", "Params.sketch7_width")
pocket6 = body.newObject("PartDesign::Pocket", "Pocket005")
pocket6.Profile = sketch7
pocket6.setExpression("Length", "Params.pocket6_length")
pocket6.Reversed = True

sketch8 = body.newObject("Sketcher::SketchObject", "Sketch007")
sketch8.AttachmentSupport = (doc.getObject("XZ_Plane"), [""])
sketch8.MapMode = "FlatFace"
sketch8.AttachmentOffset = App.Placement(App.Vector(0, 0, -7.5), App.Rotation())
sketch8.addGeometry([
    Part.LineSegment(App.Vector(-9.5, 1, 0), App.Vector(-6, 1, 0)),
    Part.ArcOfCircle(Part.Circle(App.Vector(-6, 0, 0), App.Vector(0, 0, 1), 1), math.radians(-90), math.radians(90)),
    Part.LineSegment(App.Vector(-6, -1, 0), App.Vector(-9.5, -1, 0)),
    Part.LineSegment(App.Vector(-9.5, -1, 0), App.Vector(-9.5, 1, 0)),
    Part.LineSegment(App.Vector(9.5, 1, 0), App.Vector(9.5, -1, 0)),
    Part.LineSegment(App.Vector(9.5, -1, 0), App.Vector(6, -1, 0)),
    Part.ArcOfCircle(Part.Circle(App.Vector(6, 0, 0), App.Vector(0, 0, 1), 1), math.radians(90), math.radians(270)),
    Part.LineSegment(App.Vector(6, 1, 0), App.Vector(9.5, 1, 0)),
], False)
sketch8.addConstraint([
    Sketcher.Constraint("Tangent", 0, 2, 1, 2),
    Sketcher.Constraint("Tangent", 1, 1, 2, 1),
    Sketcher.Constraint("Coincident", 2, 2, 3, 1),
    Sketcher.Constraint("Coincident", 3, 2, 0, 1),
    Sketcher.Constraint("Coincident", 4, 2, 5, 1),
    Sketcher.Constraint("Tangent", 5, 2, 6, 2),
    Sketcher.Constraint("Tangent", 6, 1, 7, 1),
    Sketcher.Constraint("Coincident", 7, 2, 4, 1),
    Sketcher.Constraint("Horizontal", 0),
    Sketcher.Constraint("Horizontal", 2),
    Sketcher.Constraint("Vertical", 3),
    Sketcher.Constraint("Vertical", 4),
    Sketcher.Constraint("Horizontal", 5),
    Sketcher.Constraint("Horizontal", 7),
    Sketcher.Constraint("Equal", 1, 6),
    Sketcher.Constraint("Symmetric", 1, 3, 6, 3, -1, 1),
    Sketcher.Constraint("Symmetric", 2, 2, 4, 2, -2),
    Sketcher.Constraint("Radius", 1, Q("1 mm")),
    Sketcher.Constraint("DistanceX", 0, 1, 0, 2, Q("3.5 mm")),
    Sketcher.Constraint("DistanceX", 1, 3, -1, 1, Q("6 mm")),
])
sketch8.setExpression("Constraints[17]", "Params.sketch8_radius")
sketch8.setExpression("Constraints[18]", "Params.sketch8_width")
pocket7 = body.newObject("PartDesign::Pocket", "Pocket006")
pocket7.Profile = sketch8
pocket7.setExpression("Length", "Params.pocket7_length")

sketch9 = body.newObject("Sketcher::SketchObject", "Sketch008")
sketch9.AttachmentSupport = (doc.getObject("XY_Plane"), [""])
sketch9.MapMode = "FlatFace"
sketch9.AttachmentOffset = App.Placement(App.Vector(0, 0, -9.5), App.Rotation())
sketch9.addGeometry([
    Part.LineSegment(App.Vector(9.5, -1, 0), App.Vector(6, -1, 0)),
    Part.ArcOfCircle(Part.Circle(App.Vector(6, 0, 0), App.Vector(0, 0, 1), 1), math.radians(90), math.radians(270)),
    Part.LineSegment(App.Vector(6, 1, 0), App.Vector(9.5, 1, 0)),
    Part.LineSegment(App.Vector(9.5, 1, 0), App.Vector(9.5, -1, 0)),
    Part.LineSegment(App.Vector(-9.5, -1, 0), App.Vector(-9.5, 1, 0)),
    Part.LineSegment(App.Vector(-9.5, 1, 0), App.Vector(-6, 1, 0)),
    Part.ArcOfCircle(Part.Circle(App.Vector(-6, 0, 0), App.Vector(0, 0, 1), 1), math.radians(-90), math.radians(90)),
    Part.LineSegment(App.Vector(-6, -1, 0), App.Vector(-9.5, -1, 0)),
], False)
sketch9.addConstraint([
    Sketcher.Constraint("Tangent", 0, 2, 1, 2),
    Sketcher.Constraint("Tangent", 1, 1, 2, 1),
    Sketcher.Constraint("Coincident", 2, 2, 3, 1),
    Sketcher.Constraint("Coincident", 3, 2, 0, 1),
    Sketcher.Constraint("Coincident", 4, 2, 5, 1),
    Sketcher.Constraint("Tangent", 5, 2, 6, 2),
    Sketcher.Constraint("Tangent", 6, 1, 7, 1),
    Sketcher.Constraint("Coincident", 7, 2, 4, 1),
    Sketcher.Constraint("Horizontal", 0),
    Sketcher.Constraint("Horizontal", 2),
    Sketcher.Constraint("Vertical", 3),
    Sketcher.Constraint("Vertical", 4),
    Sketcher.Constraint("Horizontal", 5),
    Sketcher.Constraint("Horizontal", 7),
    Sketcher.Constraint("Equal", 1, 6),
    Sketcher.Constraint("Symmetric", 1, 3, 6, 3, -1, 1),
    Sketcher.Constraint("Symmetric", 2, 2, 4, 2, -2),
    Sketcher.Constraint("Radius", 1, Q("1 mm")),
    Sketcher.Constraint("DistanceX", 0, 2, 0, 1, Q("3.5 mm")),
    Sketcher.Constraint("DistanceX", -1, 1, 1, 3, Q("6 mm")),
])
sketch9.setExpression("Constraints[17]", "Params.sketch9_radius")
sketch9.setExpression("Constraints[18]", "Params.sketch9_width")
pocket8 = body.newObject("PartDesign::Pocket", "Pocket007")
pocket8.Profile = sketch9
pocket8.setExpression("Length", "Params.pocket8_length")
pocket8.Reversed = True

sketch10 = body.newObject("Sketcher::SketchObject", "Sketch009")
sketch10.AttachmentSupport = (doc.getObject("YZ_Plane"), [""])
sketch10.MapMode = "FlatFace"
sketch10.AttachmentOffset = App.Placement(App.Vector(0, 0, 7.5), App.Rotation())
sketch10.addGeometry([
    Part.LineSegment(App.Vector(2, 9.5, 0), App.Vector(-2, 9.5, 0)),
    Part.LineSegment(App.Vector(-2, 9.5, 0), App.Vector(-2, 4, 0)),
    Part.LineSegment(App.Vector(-2, 4, 0), App.Vector(2, 4, 0)),
    Part.LineSegment(App.Vector(2, 4, 0), App.Vector(2, 9.5, 0)),
    Part.LineSegment(App.Vector(2, -4, 0), App.Vector(-2, -4, 0)),
    Part.LineSegment(App.Vector(-2, -4, 0), App.Vector(-2, -9.5, 0)),
    Part.LineSegment(App.Vector(-2, -9.5, 0), App.Vector(2, -9.5, 0)),
    Part.LineSegment(App.Vector(2, -9.5, 0), App.Vector(2, -4, 0)),
], False)
sketch10.addConstraint([
    Sketcher.Constraint("Coincident", 0, 2, 1, 1),
    Sketcher.Constraint("Coincident", 1, 2, 2, 1),
    Sketcher.Constraint("Coincident", 2, 2, 3, 1),
    Sketcher.Constraint("Coincident", 3, 2, 0, 1),
    Sketcher.Constraint("Coincident", 4, 2, 5, 1),
    Sketcher.Constraint("Coincident", 5, 2, 6, 1),
    Sketcher.Constraint("Coincident", 6, 2, 7, 1),
    Sketcher.Constraint("Coincident", 7, 2, 4, 1),
    Sketcher.Constraint("Horizontal", 0),
    Sketcher.Constraint("Vertical", 1),
    Sketcher.Constraint("Horizontal", 2),
    Sketcher.Constraint("Vertical", 3),
    Sketcher.Constraint("Horizontal", 4),
    Sketcher.Constraint("Vertical", 5),
    Sketcher.Constraint("Horizontal", 6),
    Sketcher.Constraint("Vertical", 7),
    Sketcher.Constraint("Symmetric", 2, 2, 4, 2, -1, 1),
    Sketcher.Constraint("Symmetric", 0, 2, 6, 2, -1, 1),
    Sketcher.Constraint("Vertical", 1, 2, 4, 2),
    Sketcher.Constraint("DistanceX", 0, 2, 0, 1, Q("4 mm")),
    Sketcher.Constraint("DistanceY", 1, 2, 1, 1, Q("5.5 mm")),
    Sketcher.Constraint("DistanceY", -1, 1, 1, 2, Q("4 mm")),
])
sketch10.setExpression("Constraints[19]", "Params.sketch10_width")
sketch10.setExpression("Constraints[20]", "Params.sketch10_height")
pocket9 = body.newObject("PartDesign::Pocket", "Pocket008")
pocket9.Profile = sketch10
pocket9.setExpression("Length", "Params.pocket9_length")
pocket9.Reversed = True

sketch11 = body.newObject("Sketcher::SketchObject", "Sketch010")
sketch11.AttachmentSupport = (doc.getObject("YZ_Plane"), [""])
sketch11.MapMode = "FlatFace"
sketch11.AttachmentOffset = App.Placement(App.Vector(0, 0, 7.5), App.Rotation())
sketch11.addGeometry([
    Part.LineSegment(App.Vector(-1, 9.5, 0), App.Vector(-1, 6, 0)),
    Part.ArcOfCircle(Part.Circle(App.Vector(0, 6, 0), App.Vector(0, 0, 1), 1), math.radians(180), math.radians(360)),
    Part.LineSegment(App.Vector(1, 6, 0), App.Vector(1, 9.5, 0)),
    Part.LineSegment(App.Vector(1, 9.5, 0), App.Vector(-1, 9.5, 0)),
    Part.LineSegment(App.Vector(-1, -9.5, 0), App.Vector(1, -9.5, 0)),
    Part.LineSegment(App.Vector(1, -9.5, 0), App.Vector(1, -6, 0)),
    Part.ArcOfCircle(Part.Circle(App.Vector(0, -6, 0), App.Vector(0, 0, 1), 1), math.radians(0), math.radians(180)),
    Part.LineSegment(App.Vector(-1, -6, 0), App.Vector(-1, -9.5, 0)),
], False)
sketch11.addConstraint([
    Sketcher.Constraint("Tangent", 0, 2, 1, 1),
    Sketcher.Constraint("Tangent", 1, 2, 2, 1),
    Sketcher.Constraint("Coincident", 2, 2, 3, 1),
    Sketcher.Constraint("Coincident", 3, 2, 0, 1),
    Sketcher.Constraint("Coincident", 4, 2, 5, 1),
    Sketcher.Constraint("Tangent", 5, 2, 6, 1),
    Sketcher.Constraint("Tangent", 6, 2, 7, 1),
    Sketcher.Constraint("Coincident", 7, 2, 4, 1),
    Sketcher.Constraint("Vertical", 0),
    Sketcher.Constraint("Vertical", 2),
    Sketcher.Constraint("Horizontal", 3),
    Sketcher.Constraint("Horizontal", 4),
    Sketcher.Constraint("Vertical", 5),
    Sketcher.Constraint("Vertical", 7),
    Sketcher.Constraint("Equal", 1, 6),
    Sketcher.Constraint("Symmetric", 1, 3, 6, 3, -1, 1),
    Sketcher.Constraint("Symmetric", 2, 2, 4, 2, -1),
    Sketcher.Constraint("Radius", 1, Q("1 mm")),
    Sketcher.Constraint("DistanceY", 0, 2, 0, 1, Q("3.5 mm")),
    Sketcher.Constraint("DistanceY", -1, 1, 1, 3, Q("6 mm")),
])
sketch11.setExpression("Constraints[17]", "Params.sketch11_radius")
sketch11.setExpression("Constraints[18]", "Params.sketch11_height")
pocket10 = body.newObject("PartDesign::Pocket", "Pocket009")
pocket10.Profile = sketch11
pocket10.setExpression("Length", "Params.pocket10_length")
pocket10.Reversed = True

sketch12 = body.newObject("Sketcher::SketchObject", "Sketch011")
sketch12.AttachmentSupport = (doc.getObject("YZ_Plane"), [""])
sketch12.MapMode = "FlatFace"
sketch12.AttachmentOffset = App.Placement(App.Vector(0, 0, -9.5), App.Rotation())
sketch12.addGeometry([
    Part.LineSegment(App.Vector(6, -5, 0), App.Vector(-6, -5, 0)),
    Part.LineSegment(App.Vector(-6, -5, 0), App.Vector(-6, 5, 0)),
    Part.LineSegment(App.Vector(-6, 5, 0), App.Vector(6, 5, 0)),
    Part.LineSegment(App.Vector(6, 5, 0), App.Vector(6, -5, 0)),
], False)
sketch12.addConstraint([
    Sketcher.Constraint("Coincident", 0, 2, 1, 1),
    Sketcher.Constraint("Coincident", 1, 2, 2, 1),
    Sketcher.Constraint("Coincident", 2, 2, 3, 1),
    Sketcher.Constraint("Coincident", 3, 2, 0, 1),
    Sketcher.Constraint("Horizontal", 0),
    Sketcher.Constraint("Vertical", 1),
    Sketcher.Constraint("Horizontal", 2),
    Sketcher.Constraint("Vertical", 3),
    Sketcher.Constraint("Symmetric", 0, 2, 2, 2, -1, 1),
    Sketcher.Constraint("DistanceX", 0, 2, 0, 1, Q("12 mm")),
    Sketcher.Constraint("DistanceY", 1, 1, 1, 2, Q("10 mm")),
])
sketch12.setExpression("Constraints[9]", "Params.sketch12_width")
sketch12.setExpression("Constraints[10]", "Params.sketch12_height")
pad2 = body.newObject("PartDesign::Pad", "Pad001")
pad2.Profile = sketch12
pad2.setExpression("Length", "Params.pad2_length")
pad2.Reversed = True

sketch13 = body.newObject("Sketcher::SketchObject", "Sketch012")
sketch13.AttachmentSupport = (doc.getObject("XY_Plane"), [""])
sketch13.MapMode = "FlatFace"
sketch13.addGeometry(Part.Circle(App.Vector(-17.5, 0, 0), App.Vector(0, 0, 1), 4), False)
sketch13.addConstraint([
    Sketcher.Constraint("PointOnObject", 0, 3, -1),
    Sketcher.Constraint("Diameter", 0, Q("8 mm")),
    Sketcher.Constraint("DistanceX", 0, 3, -1, 1, Q("17.5 mm")),
])
sketch13.setExpression("Constraints[1]", "Params.sketch13_diameter")
pocket11 = body.newObject("PartDesign::Pocket", "Pocket010")
pocket11.Profile = sketch13
pocket11.setExpression("Length", "Params.pocket11_length")
pocket11.Midplane = True

doc.recompute()
